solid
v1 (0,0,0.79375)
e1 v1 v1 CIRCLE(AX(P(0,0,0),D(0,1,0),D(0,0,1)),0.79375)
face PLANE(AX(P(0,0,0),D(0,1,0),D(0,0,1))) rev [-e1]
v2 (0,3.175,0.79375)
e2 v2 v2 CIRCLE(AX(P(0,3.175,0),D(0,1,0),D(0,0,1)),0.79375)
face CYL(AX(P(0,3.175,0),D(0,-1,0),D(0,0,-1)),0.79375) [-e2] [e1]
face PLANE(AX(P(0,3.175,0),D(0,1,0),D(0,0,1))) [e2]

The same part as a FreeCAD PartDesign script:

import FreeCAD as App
import Part
import Sketcher
Q = App.Units.Quantity

doc = App.newDocument("Part")
body = doc.addObject("PartDesign::Body", "Body")

# Sketch on XZ plane
sketch1 = body.newObject("Sketcher::SketchObject", "Sketch")
sketch1.AttachmentSupport = (doc.getObject("XZ_Plane"), [""])
sketch1.MapMode = "FlatFace"
sketch1.addGeometry(Part.Circle(App.Vector(0, 0, 0), App.Vector(0, 0, 1), 0.79375), False)
sketch1.addConstraint([
    Sketcher.Constraint("Coincident", 0, 3, -1, 1),
    Sketcher.Constraint("Diameter", 0, Q("0.0625 in")),
])
pad1 = body.newObject("PartDesign::Pad", "Pad")
pad1.Profile = sketch1
pad1.Length = Q("0.125 in")
pad1.Reversed = True

doc.recompute()
